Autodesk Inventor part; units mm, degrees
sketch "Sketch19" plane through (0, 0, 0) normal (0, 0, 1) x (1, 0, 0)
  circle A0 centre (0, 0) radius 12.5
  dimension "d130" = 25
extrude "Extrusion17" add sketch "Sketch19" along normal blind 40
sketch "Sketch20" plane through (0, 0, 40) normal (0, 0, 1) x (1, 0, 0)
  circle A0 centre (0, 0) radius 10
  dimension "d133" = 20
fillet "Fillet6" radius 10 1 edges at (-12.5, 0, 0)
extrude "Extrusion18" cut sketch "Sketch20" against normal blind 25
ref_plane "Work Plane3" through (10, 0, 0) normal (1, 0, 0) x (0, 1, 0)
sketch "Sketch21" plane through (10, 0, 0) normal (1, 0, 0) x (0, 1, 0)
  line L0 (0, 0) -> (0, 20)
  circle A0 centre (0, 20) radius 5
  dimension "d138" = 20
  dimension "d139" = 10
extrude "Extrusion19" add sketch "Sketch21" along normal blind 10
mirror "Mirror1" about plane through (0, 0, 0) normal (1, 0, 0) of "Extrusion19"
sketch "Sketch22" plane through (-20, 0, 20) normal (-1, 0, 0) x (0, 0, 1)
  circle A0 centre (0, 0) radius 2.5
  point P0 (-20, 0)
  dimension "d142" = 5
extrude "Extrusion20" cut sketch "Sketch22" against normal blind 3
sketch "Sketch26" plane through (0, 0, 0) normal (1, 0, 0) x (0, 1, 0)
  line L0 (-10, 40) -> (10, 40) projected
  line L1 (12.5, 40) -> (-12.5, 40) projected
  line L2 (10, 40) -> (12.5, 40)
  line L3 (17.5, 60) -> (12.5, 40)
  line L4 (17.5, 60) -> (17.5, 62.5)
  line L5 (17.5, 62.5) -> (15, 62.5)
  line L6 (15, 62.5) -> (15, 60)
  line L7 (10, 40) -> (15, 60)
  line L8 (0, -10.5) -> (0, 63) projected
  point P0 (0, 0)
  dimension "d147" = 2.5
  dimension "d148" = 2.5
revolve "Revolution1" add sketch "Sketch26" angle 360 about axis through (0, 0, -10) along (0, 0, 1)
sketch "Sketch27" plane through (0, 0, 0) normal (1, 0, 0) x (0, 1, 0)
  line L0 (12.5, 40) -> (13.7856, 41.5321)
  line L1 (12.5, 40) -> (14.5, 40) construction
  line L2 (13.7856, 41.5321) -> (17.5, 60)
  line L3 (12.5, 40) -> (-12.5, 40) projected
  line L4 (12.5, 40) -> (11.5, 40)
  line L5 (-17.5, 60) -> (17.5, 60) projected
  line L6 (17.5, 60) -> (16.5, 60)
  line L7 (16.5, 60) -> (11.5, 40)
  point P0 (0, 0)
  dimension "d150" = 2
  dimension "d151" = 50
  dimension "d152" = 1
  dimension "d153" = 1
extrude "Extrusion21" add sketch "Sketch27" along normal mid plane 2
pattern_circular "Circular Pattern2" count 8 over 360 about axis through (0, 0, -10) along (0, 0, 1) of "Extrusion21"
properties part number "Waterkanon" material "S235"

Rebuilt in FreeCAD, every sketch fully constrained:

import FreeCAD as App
import Part
import Sketcher
from FreeCAD import Vector
Q = App.Units.Quantity


def edges_at(feature, points):
    """Names of the edges that pass closest to the given points."""
    edges = feature.Shape.Edges
    near = lambda p: min(range(len(edges)), key=lambda i: edges[i].distToShape(Part.Vertex(*p))[0])
    return sorted({f"Edge{near(p) + 1}" for p in points})

doc = App.newDocument("Part")
body = doc.addObject("PartDesign::Body", "Body")

sketch1 = doc.addObject("Sketcher::SketchObject", "Sketch")
body.addObject(sketch1)
sketch1.AttachmentSupport = (doc.XY_Plane, [""])
sketch1.MapMode = "FlatFace"
sketch1.addGeometry(Part.Circle(Vector(0, 0, 0), Vector(0, 0, 1), 12), False)
sketch1.addConstraint([
    Sketcher.Constraint("Coincident", 0, 3, -1, 1),
    Sketcher.Constraint("Diameter", 0, Q("25 mm")),
])
pad1 = doc.addObject("PartDesign::Pad", "Pad")
body.addObject(pad1)
pad1.Profile = sketch1
pad1.Length = 40
doc.recompute()

fillet = doc.addObject("PartDesign::Fillet", "Fillet")
body.addObject(fillet)
fillet.Base = (pad1, edges_at(pad1, [(-12.5, 0, 0)]))
fillet.Radius = 10

sketch2 = doc.addObject("Sketcher::SketchObject", "Sketch001")
body.addObject(sketch2)
sketch2.AttachmentSupport = (doc.XY_Plane, [""])
sketch2.MapMode = "FlatFace"
sketch2.AttachmentOffset = App.Placement(Vector(0, 0, 40), App.Rotation())
sketch2.addGeometry(Part.Circle(Vector(0, 0, 0), Vector(0, 0, 1), 10), False)
sketch2.addConstraint([
    Sketcher.Constraint("Coincident", 0, 3, -1, 1),
    Sketcher.Constraint("Diameter", 0, Q("20 mm")),
])
pocket1 = doc.addObject("PartDesign::Pocket", "Pocket")
body.addObject(pocket1)
pocket1.Profile = sketch2
pocket1.Length = 25

sketch3 = doc.addObject("Sketcher::SketchObject", "Sketch002")
body.addObject(sketch3)
sketch3.AttachmentSupport = (doc.YZ_Plane, [""])
sketch3.MapMode = "FlatFace"
sketch3.AttachmentOffset = App.Placement(Vector(0, 0, 10), App.Rotation())
sketch3.addGeometry(Part.Circle(Vector(0, 20, 0), Vector(0, 0, 1), 5), False)
sketch3.addConstraint([
    Sketcher.Constraint("PointOnObject", 0, 3, -2),
    Sketcher.Constraint("Diameter", 0, Q("10 mm")),
    Sketcher.Constraint("DistanceY", -1, 1, 0, 3, Q("20 mm")),
])
pad2 = doc.addObject("PartDesign::Pad", "Pad001")
body.addObject(pad2)
pad2.Profile = sketch3
pad2.Length = 10
doc.recompute()

mirrored = doc.addObject("PartDesign::Mirrored", "Mirrored")
body.addObject(mirrored)
mirrored.Originals = [pad2]
mirrored.MirrorPlane = (doc.YZ_Plane, [""])
body.Tip = mirrored

sketch4 = doc.addObject("Sketcher::SketchObject", "Sketch003")
body.addObject(sketch4)
sketch4.AttachmentSupport = (doc.YZ_Plane, [""])
sketch4.MapMode = "FlatFace"
sketch4.AttachmentOffset = App.Placement(Vector(0, 0, -20), App.Rotation())
sketch4.addGeometry(Part.Circle(Vector(0, 20, 0), Vector(0, 0, 1), 2.5), False)
sketch4.addConstraint([
    Sketcher.Constraint("PointOnObject", 0, 3, -2),
    Sketcher.Constraint("Diameter", 0, Q("5 mm")),
    Sketcher.Constraint("DistanceY", -1, 1, 0, 3, Q("20 mm")),
])
pocket2 = doc.addObject("PartDesign::Pocket", "Pocket001")
body.addObject(pocket2)
pocket2.Profile = sketch4
pocket2.Length = 3
pocket2.Reversed = True

sketch5 = doc.addObject("Sketcher::SketchObject", "Sketch004")
body.addObject(sketch5)
sketch5.AttachmentSupport = (doc.YZ_Plane, [""])
sketch5.MapMode = "FlatFace"
sketch5.addGeometry([
    Part.LineSegment(Vector(10, 40, 0), Vector(12.5, 40, 0)),
    Part.LineSegment(Vector(12.5, 40, 0), Vector(17.5, 60, 0)),
    Part.LineSegment(Vector(17.5, 60, 0), Vector(17.5, 62.5, 0)),
    Part.LineSegment(Vector(17.5, 62.5, 0), Vector(15, 62.5, 0)),
    Part.LineSegment(Vector(15, 62.5, 0), Vector(15, 60, 0)),
    Part.LineSegment(Vector(15, 60, 0), Vector(10, 40, 0)),
], False)
sketch5.addConstraint([
    Sketcher.Constraint("Coincident", 0, 2, 1, 1),
    Sketcher.Constraint("Coincident", 1, 2, 2, 1),
    Sketcher.Constraint("Coincident", 2, 2, 3, 1),
    Sketcher.Constraint("Coincident", 3, 2, 4, 1),
    Sketcher.Constraint("Coincident", 4, 2, 5, 1),
    Sketcher.Constraint("Coincident", 5, 2, 0, 1),
    Sketcher.Constraint("Horizontal", 0),
    Sketcher.Constraint("Vertical", 2),
    Sketcher.Constraint("Horizontal", 3),
    Sketcher.Constraint("Vertical", 4),
    Sketcher.Constraint("Parallel", 1, 5),
    Sketcher.Constraint("Horizontal", 1, 2, 4, 2),
    Sketcher.Constraint("Equal", 3, 2),
    Sketcher.Constraint("DistanceX", 0, 1, 0, 2, Q("2.5 mm")),
    Sketcher.Constraint("DistanceX", 0, 2, 3, 2, Q("2.5 mm")),
    Sketcher.Constraint("DistanceY", -1, 1, 0, 2, Q("40 mm")),
    Sketcher.Constraint("DistanceY", -1, 1, 1, 2, Q("60 mm")),
    Sketcher.Constraint("DistanceX", -1, 1, 3, 2, Q("15 mm")),
])
revolution = doc.addObject("PartDesign::Revolution", "Revolution")
body.addObject(revolution)
revolution.Profile = sketch5
revolution.ReferenceAxis = (sketch5, ["V_Axis"])
revolution.Angle = 360

sketch6 = doc.addObject("Sketcher::SketchObject", "Sketch005")
body.addObject(sketch6)
sketch6.AttachmentSupport = (doc.YZ_Plane, [""])
sketch6.MapMode = "FlatFace"
sketch6.addGeometry([
    Part.LineSegment(Vector(11.5, 40, 0), Vector(12.5, 40, 0)),
    Part.LineSegment(Vector(12.5, 40, 0), Vector(13.8, 41.5, 0)),
    Part.LineSegment(Vector(13.8, 41.5, 0), Vector(17.5, 60, 0)),
    Part.LineSegment(Vector(17.5, 60, 0), Vector(16.5, 60, 0)),
    Part.LineSegment(Vector(16.5, 60, 0), Vector(11.5, 40, 0)),
], False)
sketch6.addConstraint([
    Sketcher.Constraint("Coincident", 0, 2, 1, 1),
    Sketcher.Constraint("Coincident", 1, 2, 2, 1),
    Sketcher.Constraint("Coincident", 2, 2, 3, 1),
    Sketcher.Constraint("Coincident", 3, 2, 4, 1),
    Sketcher.Constraint("Coincident", 4, 2, 0, 1),
    Sketcher.Constraint("Horizontal", 0),
    Sketcher.Constraint("Horizontal", 3),
    Sketcher.Constraint("Equal", 0, 3),
    Sketcher.Constraint("DistanceX", 0, 1, 0, 2, Q("1 mm")),
    Sketcher.Constraint("Angle", 1, Q("49.9997 deg")),
    Sketcher.Constraint("Distance", 1, Q("2 mm")),
    Sketcher.Constraint("DistanceY", -1, 1, 0, 2, Q("40 mm")),
    Sketcher.Constraint("DistanceY", -1, 1, 2, 2, Q("60 mm")),
    Sketcher.Constraint("DistanceX", 0, 2, 2, 2, Q("5 mm")),
    Sketcher.Constraint("DistanceX", -1, 1, 0, 2, Q("12.5 mm")),
])
pad3 = doc.addObject("PartDesign::Pad", "Pad002")
body.addObject(pad3)
pad3.Profile = sketch6
pad3.Length = 2
pad3.Midplane = True
doc.recompute()

polarpattern = doc.addObject("PartDesign::PolarPattern", "PolarPattern")
body.addObject(polarpattern)
polarpattern.Originals = [pad3]
polarpattern.Axis = (doc.Z_Axis, [""])
polarpattern.Angle = 360
polarpattern.Occurrences = 8
body.Tip = polarpattern

doc.recompute()
